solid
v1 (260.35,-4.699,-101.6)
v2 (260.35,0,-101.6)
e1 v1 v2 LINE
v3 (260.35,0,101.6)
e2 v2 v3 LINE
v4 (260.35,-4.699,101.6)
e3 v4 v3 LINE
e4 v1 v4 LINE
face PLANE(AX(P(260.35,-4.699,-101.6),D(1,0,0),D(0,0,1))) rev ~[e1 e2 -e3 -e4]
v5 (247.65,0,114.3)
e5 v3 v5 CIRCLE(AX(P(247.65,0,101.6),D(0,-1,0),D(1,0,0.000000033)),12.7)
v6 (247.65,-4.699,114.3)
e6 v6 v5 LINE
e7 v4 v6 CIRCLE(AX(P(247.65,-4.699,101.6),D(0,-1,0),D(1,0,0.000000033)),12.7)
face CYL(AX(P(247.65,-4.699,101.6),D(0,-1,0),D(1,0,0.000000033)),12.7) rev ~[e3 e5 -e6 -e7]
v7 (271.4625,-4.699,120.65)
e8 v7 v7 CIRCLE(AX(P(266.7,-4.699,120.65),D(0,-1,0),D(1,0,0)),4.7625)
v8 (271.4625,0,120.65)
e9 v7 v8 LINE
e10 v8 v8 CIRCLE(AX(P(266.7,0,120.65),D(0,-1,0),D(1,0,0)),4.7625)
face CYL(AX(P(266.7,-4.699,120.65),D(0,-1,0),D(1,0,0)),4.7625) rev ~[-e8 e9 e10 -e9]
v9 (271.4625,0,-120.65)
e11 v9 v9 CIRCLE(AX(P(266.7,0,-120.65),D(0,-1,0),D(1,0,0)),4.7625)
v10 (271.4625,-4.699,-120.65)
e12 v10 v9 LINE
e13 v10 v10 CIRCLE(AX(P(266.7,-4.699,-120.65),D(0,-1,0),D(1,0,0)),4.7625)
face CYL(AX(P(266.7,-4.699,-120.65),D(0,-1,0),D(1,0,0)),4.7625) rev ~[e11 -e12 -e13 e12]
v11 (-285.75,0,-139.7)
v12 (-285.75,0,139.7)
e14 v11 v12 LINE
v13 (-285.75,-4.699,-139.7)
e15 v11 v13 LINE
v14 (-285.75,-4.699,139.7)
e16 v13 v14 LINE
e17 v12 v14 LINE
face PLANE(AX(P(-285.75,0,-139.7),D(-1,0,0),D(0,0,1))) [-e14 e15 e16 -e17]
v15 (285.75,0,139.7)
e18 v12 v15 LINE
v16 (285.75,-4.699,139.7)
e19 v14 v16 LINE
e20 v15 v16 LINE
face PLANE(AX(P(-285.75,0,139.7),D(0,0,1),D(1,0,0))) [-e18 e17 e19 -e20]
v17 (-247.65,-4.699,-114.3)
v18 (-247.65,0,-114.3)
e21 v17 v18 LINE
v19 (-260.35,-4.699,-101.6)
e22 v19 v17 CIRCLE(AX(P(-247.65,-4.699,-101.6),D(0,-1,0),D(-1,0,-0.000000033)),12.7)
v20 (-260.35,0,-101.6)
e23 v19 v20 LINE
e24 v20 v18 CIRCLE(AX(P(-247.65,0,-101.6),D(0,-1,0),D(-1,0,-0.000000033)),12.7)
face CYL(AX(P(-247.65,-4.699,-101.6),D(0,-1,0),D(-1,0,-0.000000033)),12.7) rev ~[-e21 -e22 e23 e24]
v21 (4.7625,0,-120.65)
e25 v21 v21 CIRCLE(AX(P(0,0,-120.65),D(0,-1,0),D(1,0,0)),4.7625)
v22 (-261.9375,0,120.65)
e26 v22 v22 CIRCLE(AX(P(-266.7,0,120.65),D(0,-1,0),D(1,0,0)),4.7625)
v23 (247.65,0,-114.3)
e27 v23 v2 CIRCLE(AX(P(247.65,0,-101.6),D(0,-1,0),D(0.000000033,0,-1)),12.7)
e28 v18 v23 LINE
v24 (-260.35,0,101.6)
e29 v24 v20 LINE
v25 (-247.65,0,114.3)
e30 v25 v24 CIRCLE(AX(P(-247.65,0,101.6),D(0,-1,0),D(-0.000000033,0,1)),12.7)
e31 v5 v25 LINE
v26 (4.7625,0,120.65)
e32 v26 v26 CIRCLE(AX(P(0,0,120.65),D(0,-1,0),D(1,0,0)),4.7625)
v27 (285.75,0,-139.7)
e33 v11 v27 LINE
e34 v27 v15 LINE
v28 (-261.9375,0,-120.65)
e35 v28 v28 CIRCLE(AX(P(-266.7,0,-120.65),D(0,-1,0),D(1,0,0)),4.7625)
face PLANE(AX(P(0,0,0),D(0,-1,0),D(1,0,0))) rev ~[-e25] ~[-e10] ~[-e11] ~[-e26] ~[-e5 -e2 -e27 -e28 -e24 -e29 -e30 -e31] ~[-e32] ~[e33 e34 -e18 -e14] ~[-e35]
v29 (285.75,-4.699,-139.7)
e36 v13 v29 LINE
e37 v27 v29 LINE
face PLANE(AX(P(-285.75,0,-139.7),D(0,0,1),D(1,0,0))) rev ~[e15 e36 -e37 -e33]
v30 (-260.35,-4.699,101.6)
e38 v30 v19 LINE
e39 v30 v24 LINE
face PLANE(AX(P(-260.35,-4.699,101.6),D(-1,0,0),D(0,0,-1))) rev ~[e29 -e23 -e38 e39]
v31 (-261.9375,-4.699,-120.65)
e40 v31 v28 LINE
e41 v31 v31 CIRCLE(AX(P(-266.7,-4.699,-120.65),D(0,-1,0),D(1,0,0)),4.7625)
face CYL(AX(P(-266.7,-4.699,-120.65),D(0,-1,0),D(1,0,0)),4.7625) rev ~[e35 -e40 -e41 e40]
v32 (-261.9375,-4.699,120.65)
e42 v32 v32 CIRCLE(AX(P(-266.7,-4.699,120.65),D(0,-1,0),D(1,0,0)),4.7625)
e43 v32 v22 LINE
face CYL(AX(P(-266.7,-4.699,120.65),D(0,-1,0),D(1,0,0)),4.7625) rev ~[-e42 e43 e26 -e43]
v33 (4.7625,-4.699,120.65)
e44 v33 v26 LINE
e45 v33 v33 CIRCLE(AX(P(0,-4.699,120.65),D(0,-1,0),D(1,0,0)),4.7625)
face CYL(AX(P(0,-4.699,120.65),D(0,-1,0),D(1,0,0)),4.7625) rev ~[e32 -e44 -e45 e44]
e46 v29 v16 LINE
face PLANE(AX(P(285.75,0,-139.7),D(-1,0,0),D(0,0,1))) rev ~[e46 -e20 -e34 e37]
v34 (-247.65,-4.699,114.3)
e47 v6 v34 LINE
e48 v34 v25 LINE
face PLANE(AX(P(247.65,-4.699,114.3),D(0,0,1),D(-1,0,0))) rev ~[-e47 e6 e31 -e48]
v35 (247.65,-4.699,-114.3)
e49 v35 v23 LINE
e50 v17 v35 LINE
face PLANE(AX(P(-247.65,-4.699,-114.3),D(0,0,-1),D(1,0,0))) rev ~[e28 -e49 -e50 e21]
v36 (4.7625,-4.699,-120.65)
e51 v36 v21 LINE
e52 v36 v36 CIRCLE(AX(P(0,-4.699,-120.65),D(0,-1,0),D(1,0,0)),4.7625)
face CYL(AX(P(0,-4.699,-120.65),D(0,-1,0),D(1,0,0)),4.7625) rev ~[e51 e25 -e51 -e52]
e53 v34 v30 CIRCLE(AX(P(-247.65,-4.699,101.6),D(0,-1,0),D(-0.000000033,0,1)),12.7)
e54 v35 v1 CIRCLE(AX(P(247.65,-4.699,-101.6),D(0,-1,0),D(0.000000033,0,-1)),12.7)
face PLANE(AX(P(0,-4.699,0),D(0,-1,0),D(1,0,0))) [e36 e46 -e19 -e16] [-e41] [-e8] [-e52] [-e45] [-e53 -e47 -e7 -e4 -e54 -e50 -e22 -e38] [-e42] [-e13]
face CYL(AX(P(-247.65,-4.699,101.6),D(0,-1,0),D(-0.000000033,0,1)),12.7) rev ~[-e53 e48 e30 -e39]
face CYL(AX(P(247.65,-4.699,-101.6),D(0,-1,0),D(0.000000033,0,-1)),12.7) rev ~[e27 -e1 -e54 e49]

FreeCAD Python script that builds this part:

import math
import FreeCAD as App
import Part
import Sketcher
Q = App.Units.Quantity


def add_polygon(sketch, points):
    """Adds a closed chain of lines whose ends are joined by coincident constraints."""
    first, n = sketch.GeometryCount, len(points)
    for a, b in zip(points, points[1:] + points[:1]):
        sketch.addGeometry(Part.LineSegment(App.Vector(*a, 0), App.Vector(*b, 0)), False)
    for i in range(n):
        sketch.addConstraint(Sketcher.Constraint("Coincident", first + i, 2, first + (i + 1) % n, 1))

doc = App.newDocument("Part")
body = doc.addObject("PartDesign::Body", "Body")

sketch1 = body.newObject("Sketcher::SketchObject", "Sketch")
sketch1.AttachmentSupport = (doc.getObject("XZ_Plane"), [""])
sketch1.MapMode = "FlatFace"
add_polygon(sketch1, [(-286, 140), (-286, -140), (286, -140), (286, 140)])
sketch1.addConstraint(Sketcher.Constraint("Vertical", 0))
sketch1.addConstraint(Sketcher.Constraint("Horizontal", 1))
sketch1.addConstraint(Sketcher.Constraint("Vertical", 2))
sketch1.addConstraint(Sketcher.Constraint("Horizontal", 3))
sketch1.addConstraint(Sketcher.Constraint("Symmetric", 0, 2, 2, 2, -1, 1))
sketch1.addConstraint(Sketcher.Constraint("DistanceY", 0, 2, 0, 1, Q("11 in")))
sketch1.addConstraint(Sketcher.Constraint("DistanceX", 1, 1, 1, 2, Q("22.5 in")))
pad1 = body.newObject("PartDesign::Pad", "Pad")
pad1.Profile = sketch1
pad1.Length = Q("0.185 in")

sketch2 = body.newObject("Sketcher::SketchObject", "Sketch001")
sketch2.AttachmentSupport = (doc.getObject("XZ_Plane"), [""])
sketch2.MapMode = "FlatFace"
sketch2.AttachmentOffset = App.Placement(App.Vector(0, 0, 0.185 * 25.4), App.Rotation())
sketch2.addGeometry(Part.LineSegment(App.Vector(248, 114, 0), App.Vector(-248, 114, 0)), False)
sketch2.addGeometry(Part.ArcOfCircle(Part.Circle(App.Vector(-248, 102, 0), App.Vector(0, 0, 1), 13), math.radians(90), math.radians(180)), False)
sketch2.addGeometry(Part.LineSegment(App.Vector(-260, 102, 0), App.Vector(-260, -102, 0)), False)
sketch2.addGeometry(Part.ArcOfCircle(Part.Circle(App.Vector(-248, -102, 0), App.Vector(0, 0, 1), 13), math.radians(-180), math.radians(-90)), False)
sketch2.addGeometry(Part.LineSegment(App.Vector(-248, -114, 0), App.Vector(248, -114, 0)), False)
sketch2.addGeometry(Part.ArcOfCircle(Part.Circle(App.Vector(248, -102, 0), App.Vector(0, 0, 1), 13), math.radians(-90), math.radians(0)), False)
sketch2.addGeometry(Part.LineSegment(App.Vector(260, -102, 0), App.Vector(260, 102, 0)), False)
sketch2.addGeometry(Part.ArcOfCircle(Part.Circle(App.Vector(248, 102, 0), App.Vector(0, 0, 1), 13), math.radians(0), math.radians(90)), False)
sketch2.addConstraint(Sketcher.Constraint("Tangent", 0, 2, 1, 1))
sketch2.addConstraint(Sketcher.Constraint("Tangent", 1, 2, 2, 1))
sketch2.addConstraint(Sketcher.Constraint("Tangent", 2, 2, 3, 1))
sketch2.addConstraint(Sketcher.Constraint("Tangent", 3, 2, 4, 1))
sketch2.addConstraint(Sketcher.Constraint("Tangent", 4, 2, 5, 1))
sketch2.addConstraint(Sketcher.Constraint("Tangent", 5, 2, 6, 1))
sketch2.addConstraint(Sketcher.Constraint("Tangent", 6, 2, 7, 1))
sketch2.addConstraint(Sketcher.Constraint("Tangent", 7, 2, 0, 1))
sketch2.addConstraint(Sketcher.Constraint("Horizontal", 0))
sketch2.addConstraint(Sketcher.Constraint("Vertical", 2))
sketch2.addConstraint(Sketcher.Constraint("Horizontal", 4))
sketch2.addConstraint(Sketcher.Constraint("Vertical", 6))
sketch2.addConstraint(Sketcher.Constraint("Equal", 1, 3))
sketch2.addConstraint(Sketcher.Constraint("Equal", 3, 5))
sketch2.addConstraint(Sketcher.Constraint("Equal", 5, 7))
sketch2.addConstraint(Sketcher.Constraint("Symmetric", 1, 3, 5, 3, -1, 1))
sketch2.addConstraint(Sketcher.Constraint("Radius", 1, Q("0.5 in")))
sketch2.addConstraint(Sketcher.Constraint("DistanceY", 2, 2, 2, 1, Q("8 in")))
sketch2.addConstraint(Sketcher.Constraint("DistanceX", 0, 2, 0, 1, Q("19.5 in")))
pocket1 = body.newObject("PartDesign::Pocket", "Pocket")
pocket1.Profile = sketch2
pocket1.Type = "ThroughAll"

sketch3 = body.newObject("Sketcher::SketchObject", "Sketch002")
sketch3.AttachmentSupport = (doc.getObject("XZ_Plane"), [""])
sketch3.MapMode = "FlatFace"
sketch3.AttachmentOffset = App.Placement(App.Vector(0, 0, 0.185 * 25.4), App.Rotation())
sketch3.addGeometry(Part.Circle(App.Vector(-266.7, -120.7, 0), App.Vector(0, 0, 1), 4.8), False)
sketch3.addGeometry(Part.Circle(App.Vector(0, -120.7, 0), App.Vector(0, 0, 1), 4.8), False)
sketch3.addGeometry(Part.Circle(App.Vector(266.7, -120.7, 0), App.Vector(0, 0, 1), 4.8), False)
sketch3.addGeometry(Part.Circle(App.Vector(266.7, 120.7, 0), App.Vector(0, 0, 1), 4.8), False)
sketch3.addGeometry(Part.Circle(App.Vector(0, 120.7, 0), App.Vector(0, 0, 1), 4.8), False)
sketch3.addGeometry(Part.Circle(App.Vector(-266.7, 120.7, 0), App.Vector(0, 0, 1), 4.8), False)
sketch3.addConstraint(Sketcher.Constraint("Equal", 0, 1))
sketch3.addConstraint(Sketcher.Constraint("Equal", 1, 2))
sketch3.addConstraint(Sketcher.Constraint("Equal", 2, 3))
sketch3.addConstraint(Sketcher.Constraint("Equal", 3, 4))
sketch3.addConstraint(Sketcher.Constraint("Equal", 4, 5))
sketch3.addConstraint(Sketcher.Constraint("Symmetric", 0, 3, 3, 3, -1, 1))
sketch3.addConstraint(Sketcher.Constraint("Symmetric", 1, 3, 4, 3, -1, 1))
sketch3.addConstraint(Sketcher.Constraint("Symmetric", 2, 3, 5, 3, -1, 1))
sketch3.addConstraint(Sketcher.Constraint("Symmetric", 0, 3, 2, 3, -2))
sketch3.addConstraint(Sketcher.Constraint("PointOnObject", 1, 3, -2))
sketch3.addConstraint(Sketcher.Constraint("Horizontal", 0, 3, 1, 3))
sketch3.addConstraint(Sketcher.Constraint("Diameter", 0, Q("0.375 in")))
sketch3.addConstraint(Sketcher.Constraint("DistanceX", 0, 3, 2, 3, Q("21 in")))
sketch3.addConstraint(Sketcher.Constraint("DistanceY", 2, 3, 3, 3, Q("9.5 in")))
pocket2 = body.newObject("PartDesign::Pocket", "Pocket001")
pocket2.Profile = sketch3
pocket2.Type = "ThroughAll"

doc.recompute()
